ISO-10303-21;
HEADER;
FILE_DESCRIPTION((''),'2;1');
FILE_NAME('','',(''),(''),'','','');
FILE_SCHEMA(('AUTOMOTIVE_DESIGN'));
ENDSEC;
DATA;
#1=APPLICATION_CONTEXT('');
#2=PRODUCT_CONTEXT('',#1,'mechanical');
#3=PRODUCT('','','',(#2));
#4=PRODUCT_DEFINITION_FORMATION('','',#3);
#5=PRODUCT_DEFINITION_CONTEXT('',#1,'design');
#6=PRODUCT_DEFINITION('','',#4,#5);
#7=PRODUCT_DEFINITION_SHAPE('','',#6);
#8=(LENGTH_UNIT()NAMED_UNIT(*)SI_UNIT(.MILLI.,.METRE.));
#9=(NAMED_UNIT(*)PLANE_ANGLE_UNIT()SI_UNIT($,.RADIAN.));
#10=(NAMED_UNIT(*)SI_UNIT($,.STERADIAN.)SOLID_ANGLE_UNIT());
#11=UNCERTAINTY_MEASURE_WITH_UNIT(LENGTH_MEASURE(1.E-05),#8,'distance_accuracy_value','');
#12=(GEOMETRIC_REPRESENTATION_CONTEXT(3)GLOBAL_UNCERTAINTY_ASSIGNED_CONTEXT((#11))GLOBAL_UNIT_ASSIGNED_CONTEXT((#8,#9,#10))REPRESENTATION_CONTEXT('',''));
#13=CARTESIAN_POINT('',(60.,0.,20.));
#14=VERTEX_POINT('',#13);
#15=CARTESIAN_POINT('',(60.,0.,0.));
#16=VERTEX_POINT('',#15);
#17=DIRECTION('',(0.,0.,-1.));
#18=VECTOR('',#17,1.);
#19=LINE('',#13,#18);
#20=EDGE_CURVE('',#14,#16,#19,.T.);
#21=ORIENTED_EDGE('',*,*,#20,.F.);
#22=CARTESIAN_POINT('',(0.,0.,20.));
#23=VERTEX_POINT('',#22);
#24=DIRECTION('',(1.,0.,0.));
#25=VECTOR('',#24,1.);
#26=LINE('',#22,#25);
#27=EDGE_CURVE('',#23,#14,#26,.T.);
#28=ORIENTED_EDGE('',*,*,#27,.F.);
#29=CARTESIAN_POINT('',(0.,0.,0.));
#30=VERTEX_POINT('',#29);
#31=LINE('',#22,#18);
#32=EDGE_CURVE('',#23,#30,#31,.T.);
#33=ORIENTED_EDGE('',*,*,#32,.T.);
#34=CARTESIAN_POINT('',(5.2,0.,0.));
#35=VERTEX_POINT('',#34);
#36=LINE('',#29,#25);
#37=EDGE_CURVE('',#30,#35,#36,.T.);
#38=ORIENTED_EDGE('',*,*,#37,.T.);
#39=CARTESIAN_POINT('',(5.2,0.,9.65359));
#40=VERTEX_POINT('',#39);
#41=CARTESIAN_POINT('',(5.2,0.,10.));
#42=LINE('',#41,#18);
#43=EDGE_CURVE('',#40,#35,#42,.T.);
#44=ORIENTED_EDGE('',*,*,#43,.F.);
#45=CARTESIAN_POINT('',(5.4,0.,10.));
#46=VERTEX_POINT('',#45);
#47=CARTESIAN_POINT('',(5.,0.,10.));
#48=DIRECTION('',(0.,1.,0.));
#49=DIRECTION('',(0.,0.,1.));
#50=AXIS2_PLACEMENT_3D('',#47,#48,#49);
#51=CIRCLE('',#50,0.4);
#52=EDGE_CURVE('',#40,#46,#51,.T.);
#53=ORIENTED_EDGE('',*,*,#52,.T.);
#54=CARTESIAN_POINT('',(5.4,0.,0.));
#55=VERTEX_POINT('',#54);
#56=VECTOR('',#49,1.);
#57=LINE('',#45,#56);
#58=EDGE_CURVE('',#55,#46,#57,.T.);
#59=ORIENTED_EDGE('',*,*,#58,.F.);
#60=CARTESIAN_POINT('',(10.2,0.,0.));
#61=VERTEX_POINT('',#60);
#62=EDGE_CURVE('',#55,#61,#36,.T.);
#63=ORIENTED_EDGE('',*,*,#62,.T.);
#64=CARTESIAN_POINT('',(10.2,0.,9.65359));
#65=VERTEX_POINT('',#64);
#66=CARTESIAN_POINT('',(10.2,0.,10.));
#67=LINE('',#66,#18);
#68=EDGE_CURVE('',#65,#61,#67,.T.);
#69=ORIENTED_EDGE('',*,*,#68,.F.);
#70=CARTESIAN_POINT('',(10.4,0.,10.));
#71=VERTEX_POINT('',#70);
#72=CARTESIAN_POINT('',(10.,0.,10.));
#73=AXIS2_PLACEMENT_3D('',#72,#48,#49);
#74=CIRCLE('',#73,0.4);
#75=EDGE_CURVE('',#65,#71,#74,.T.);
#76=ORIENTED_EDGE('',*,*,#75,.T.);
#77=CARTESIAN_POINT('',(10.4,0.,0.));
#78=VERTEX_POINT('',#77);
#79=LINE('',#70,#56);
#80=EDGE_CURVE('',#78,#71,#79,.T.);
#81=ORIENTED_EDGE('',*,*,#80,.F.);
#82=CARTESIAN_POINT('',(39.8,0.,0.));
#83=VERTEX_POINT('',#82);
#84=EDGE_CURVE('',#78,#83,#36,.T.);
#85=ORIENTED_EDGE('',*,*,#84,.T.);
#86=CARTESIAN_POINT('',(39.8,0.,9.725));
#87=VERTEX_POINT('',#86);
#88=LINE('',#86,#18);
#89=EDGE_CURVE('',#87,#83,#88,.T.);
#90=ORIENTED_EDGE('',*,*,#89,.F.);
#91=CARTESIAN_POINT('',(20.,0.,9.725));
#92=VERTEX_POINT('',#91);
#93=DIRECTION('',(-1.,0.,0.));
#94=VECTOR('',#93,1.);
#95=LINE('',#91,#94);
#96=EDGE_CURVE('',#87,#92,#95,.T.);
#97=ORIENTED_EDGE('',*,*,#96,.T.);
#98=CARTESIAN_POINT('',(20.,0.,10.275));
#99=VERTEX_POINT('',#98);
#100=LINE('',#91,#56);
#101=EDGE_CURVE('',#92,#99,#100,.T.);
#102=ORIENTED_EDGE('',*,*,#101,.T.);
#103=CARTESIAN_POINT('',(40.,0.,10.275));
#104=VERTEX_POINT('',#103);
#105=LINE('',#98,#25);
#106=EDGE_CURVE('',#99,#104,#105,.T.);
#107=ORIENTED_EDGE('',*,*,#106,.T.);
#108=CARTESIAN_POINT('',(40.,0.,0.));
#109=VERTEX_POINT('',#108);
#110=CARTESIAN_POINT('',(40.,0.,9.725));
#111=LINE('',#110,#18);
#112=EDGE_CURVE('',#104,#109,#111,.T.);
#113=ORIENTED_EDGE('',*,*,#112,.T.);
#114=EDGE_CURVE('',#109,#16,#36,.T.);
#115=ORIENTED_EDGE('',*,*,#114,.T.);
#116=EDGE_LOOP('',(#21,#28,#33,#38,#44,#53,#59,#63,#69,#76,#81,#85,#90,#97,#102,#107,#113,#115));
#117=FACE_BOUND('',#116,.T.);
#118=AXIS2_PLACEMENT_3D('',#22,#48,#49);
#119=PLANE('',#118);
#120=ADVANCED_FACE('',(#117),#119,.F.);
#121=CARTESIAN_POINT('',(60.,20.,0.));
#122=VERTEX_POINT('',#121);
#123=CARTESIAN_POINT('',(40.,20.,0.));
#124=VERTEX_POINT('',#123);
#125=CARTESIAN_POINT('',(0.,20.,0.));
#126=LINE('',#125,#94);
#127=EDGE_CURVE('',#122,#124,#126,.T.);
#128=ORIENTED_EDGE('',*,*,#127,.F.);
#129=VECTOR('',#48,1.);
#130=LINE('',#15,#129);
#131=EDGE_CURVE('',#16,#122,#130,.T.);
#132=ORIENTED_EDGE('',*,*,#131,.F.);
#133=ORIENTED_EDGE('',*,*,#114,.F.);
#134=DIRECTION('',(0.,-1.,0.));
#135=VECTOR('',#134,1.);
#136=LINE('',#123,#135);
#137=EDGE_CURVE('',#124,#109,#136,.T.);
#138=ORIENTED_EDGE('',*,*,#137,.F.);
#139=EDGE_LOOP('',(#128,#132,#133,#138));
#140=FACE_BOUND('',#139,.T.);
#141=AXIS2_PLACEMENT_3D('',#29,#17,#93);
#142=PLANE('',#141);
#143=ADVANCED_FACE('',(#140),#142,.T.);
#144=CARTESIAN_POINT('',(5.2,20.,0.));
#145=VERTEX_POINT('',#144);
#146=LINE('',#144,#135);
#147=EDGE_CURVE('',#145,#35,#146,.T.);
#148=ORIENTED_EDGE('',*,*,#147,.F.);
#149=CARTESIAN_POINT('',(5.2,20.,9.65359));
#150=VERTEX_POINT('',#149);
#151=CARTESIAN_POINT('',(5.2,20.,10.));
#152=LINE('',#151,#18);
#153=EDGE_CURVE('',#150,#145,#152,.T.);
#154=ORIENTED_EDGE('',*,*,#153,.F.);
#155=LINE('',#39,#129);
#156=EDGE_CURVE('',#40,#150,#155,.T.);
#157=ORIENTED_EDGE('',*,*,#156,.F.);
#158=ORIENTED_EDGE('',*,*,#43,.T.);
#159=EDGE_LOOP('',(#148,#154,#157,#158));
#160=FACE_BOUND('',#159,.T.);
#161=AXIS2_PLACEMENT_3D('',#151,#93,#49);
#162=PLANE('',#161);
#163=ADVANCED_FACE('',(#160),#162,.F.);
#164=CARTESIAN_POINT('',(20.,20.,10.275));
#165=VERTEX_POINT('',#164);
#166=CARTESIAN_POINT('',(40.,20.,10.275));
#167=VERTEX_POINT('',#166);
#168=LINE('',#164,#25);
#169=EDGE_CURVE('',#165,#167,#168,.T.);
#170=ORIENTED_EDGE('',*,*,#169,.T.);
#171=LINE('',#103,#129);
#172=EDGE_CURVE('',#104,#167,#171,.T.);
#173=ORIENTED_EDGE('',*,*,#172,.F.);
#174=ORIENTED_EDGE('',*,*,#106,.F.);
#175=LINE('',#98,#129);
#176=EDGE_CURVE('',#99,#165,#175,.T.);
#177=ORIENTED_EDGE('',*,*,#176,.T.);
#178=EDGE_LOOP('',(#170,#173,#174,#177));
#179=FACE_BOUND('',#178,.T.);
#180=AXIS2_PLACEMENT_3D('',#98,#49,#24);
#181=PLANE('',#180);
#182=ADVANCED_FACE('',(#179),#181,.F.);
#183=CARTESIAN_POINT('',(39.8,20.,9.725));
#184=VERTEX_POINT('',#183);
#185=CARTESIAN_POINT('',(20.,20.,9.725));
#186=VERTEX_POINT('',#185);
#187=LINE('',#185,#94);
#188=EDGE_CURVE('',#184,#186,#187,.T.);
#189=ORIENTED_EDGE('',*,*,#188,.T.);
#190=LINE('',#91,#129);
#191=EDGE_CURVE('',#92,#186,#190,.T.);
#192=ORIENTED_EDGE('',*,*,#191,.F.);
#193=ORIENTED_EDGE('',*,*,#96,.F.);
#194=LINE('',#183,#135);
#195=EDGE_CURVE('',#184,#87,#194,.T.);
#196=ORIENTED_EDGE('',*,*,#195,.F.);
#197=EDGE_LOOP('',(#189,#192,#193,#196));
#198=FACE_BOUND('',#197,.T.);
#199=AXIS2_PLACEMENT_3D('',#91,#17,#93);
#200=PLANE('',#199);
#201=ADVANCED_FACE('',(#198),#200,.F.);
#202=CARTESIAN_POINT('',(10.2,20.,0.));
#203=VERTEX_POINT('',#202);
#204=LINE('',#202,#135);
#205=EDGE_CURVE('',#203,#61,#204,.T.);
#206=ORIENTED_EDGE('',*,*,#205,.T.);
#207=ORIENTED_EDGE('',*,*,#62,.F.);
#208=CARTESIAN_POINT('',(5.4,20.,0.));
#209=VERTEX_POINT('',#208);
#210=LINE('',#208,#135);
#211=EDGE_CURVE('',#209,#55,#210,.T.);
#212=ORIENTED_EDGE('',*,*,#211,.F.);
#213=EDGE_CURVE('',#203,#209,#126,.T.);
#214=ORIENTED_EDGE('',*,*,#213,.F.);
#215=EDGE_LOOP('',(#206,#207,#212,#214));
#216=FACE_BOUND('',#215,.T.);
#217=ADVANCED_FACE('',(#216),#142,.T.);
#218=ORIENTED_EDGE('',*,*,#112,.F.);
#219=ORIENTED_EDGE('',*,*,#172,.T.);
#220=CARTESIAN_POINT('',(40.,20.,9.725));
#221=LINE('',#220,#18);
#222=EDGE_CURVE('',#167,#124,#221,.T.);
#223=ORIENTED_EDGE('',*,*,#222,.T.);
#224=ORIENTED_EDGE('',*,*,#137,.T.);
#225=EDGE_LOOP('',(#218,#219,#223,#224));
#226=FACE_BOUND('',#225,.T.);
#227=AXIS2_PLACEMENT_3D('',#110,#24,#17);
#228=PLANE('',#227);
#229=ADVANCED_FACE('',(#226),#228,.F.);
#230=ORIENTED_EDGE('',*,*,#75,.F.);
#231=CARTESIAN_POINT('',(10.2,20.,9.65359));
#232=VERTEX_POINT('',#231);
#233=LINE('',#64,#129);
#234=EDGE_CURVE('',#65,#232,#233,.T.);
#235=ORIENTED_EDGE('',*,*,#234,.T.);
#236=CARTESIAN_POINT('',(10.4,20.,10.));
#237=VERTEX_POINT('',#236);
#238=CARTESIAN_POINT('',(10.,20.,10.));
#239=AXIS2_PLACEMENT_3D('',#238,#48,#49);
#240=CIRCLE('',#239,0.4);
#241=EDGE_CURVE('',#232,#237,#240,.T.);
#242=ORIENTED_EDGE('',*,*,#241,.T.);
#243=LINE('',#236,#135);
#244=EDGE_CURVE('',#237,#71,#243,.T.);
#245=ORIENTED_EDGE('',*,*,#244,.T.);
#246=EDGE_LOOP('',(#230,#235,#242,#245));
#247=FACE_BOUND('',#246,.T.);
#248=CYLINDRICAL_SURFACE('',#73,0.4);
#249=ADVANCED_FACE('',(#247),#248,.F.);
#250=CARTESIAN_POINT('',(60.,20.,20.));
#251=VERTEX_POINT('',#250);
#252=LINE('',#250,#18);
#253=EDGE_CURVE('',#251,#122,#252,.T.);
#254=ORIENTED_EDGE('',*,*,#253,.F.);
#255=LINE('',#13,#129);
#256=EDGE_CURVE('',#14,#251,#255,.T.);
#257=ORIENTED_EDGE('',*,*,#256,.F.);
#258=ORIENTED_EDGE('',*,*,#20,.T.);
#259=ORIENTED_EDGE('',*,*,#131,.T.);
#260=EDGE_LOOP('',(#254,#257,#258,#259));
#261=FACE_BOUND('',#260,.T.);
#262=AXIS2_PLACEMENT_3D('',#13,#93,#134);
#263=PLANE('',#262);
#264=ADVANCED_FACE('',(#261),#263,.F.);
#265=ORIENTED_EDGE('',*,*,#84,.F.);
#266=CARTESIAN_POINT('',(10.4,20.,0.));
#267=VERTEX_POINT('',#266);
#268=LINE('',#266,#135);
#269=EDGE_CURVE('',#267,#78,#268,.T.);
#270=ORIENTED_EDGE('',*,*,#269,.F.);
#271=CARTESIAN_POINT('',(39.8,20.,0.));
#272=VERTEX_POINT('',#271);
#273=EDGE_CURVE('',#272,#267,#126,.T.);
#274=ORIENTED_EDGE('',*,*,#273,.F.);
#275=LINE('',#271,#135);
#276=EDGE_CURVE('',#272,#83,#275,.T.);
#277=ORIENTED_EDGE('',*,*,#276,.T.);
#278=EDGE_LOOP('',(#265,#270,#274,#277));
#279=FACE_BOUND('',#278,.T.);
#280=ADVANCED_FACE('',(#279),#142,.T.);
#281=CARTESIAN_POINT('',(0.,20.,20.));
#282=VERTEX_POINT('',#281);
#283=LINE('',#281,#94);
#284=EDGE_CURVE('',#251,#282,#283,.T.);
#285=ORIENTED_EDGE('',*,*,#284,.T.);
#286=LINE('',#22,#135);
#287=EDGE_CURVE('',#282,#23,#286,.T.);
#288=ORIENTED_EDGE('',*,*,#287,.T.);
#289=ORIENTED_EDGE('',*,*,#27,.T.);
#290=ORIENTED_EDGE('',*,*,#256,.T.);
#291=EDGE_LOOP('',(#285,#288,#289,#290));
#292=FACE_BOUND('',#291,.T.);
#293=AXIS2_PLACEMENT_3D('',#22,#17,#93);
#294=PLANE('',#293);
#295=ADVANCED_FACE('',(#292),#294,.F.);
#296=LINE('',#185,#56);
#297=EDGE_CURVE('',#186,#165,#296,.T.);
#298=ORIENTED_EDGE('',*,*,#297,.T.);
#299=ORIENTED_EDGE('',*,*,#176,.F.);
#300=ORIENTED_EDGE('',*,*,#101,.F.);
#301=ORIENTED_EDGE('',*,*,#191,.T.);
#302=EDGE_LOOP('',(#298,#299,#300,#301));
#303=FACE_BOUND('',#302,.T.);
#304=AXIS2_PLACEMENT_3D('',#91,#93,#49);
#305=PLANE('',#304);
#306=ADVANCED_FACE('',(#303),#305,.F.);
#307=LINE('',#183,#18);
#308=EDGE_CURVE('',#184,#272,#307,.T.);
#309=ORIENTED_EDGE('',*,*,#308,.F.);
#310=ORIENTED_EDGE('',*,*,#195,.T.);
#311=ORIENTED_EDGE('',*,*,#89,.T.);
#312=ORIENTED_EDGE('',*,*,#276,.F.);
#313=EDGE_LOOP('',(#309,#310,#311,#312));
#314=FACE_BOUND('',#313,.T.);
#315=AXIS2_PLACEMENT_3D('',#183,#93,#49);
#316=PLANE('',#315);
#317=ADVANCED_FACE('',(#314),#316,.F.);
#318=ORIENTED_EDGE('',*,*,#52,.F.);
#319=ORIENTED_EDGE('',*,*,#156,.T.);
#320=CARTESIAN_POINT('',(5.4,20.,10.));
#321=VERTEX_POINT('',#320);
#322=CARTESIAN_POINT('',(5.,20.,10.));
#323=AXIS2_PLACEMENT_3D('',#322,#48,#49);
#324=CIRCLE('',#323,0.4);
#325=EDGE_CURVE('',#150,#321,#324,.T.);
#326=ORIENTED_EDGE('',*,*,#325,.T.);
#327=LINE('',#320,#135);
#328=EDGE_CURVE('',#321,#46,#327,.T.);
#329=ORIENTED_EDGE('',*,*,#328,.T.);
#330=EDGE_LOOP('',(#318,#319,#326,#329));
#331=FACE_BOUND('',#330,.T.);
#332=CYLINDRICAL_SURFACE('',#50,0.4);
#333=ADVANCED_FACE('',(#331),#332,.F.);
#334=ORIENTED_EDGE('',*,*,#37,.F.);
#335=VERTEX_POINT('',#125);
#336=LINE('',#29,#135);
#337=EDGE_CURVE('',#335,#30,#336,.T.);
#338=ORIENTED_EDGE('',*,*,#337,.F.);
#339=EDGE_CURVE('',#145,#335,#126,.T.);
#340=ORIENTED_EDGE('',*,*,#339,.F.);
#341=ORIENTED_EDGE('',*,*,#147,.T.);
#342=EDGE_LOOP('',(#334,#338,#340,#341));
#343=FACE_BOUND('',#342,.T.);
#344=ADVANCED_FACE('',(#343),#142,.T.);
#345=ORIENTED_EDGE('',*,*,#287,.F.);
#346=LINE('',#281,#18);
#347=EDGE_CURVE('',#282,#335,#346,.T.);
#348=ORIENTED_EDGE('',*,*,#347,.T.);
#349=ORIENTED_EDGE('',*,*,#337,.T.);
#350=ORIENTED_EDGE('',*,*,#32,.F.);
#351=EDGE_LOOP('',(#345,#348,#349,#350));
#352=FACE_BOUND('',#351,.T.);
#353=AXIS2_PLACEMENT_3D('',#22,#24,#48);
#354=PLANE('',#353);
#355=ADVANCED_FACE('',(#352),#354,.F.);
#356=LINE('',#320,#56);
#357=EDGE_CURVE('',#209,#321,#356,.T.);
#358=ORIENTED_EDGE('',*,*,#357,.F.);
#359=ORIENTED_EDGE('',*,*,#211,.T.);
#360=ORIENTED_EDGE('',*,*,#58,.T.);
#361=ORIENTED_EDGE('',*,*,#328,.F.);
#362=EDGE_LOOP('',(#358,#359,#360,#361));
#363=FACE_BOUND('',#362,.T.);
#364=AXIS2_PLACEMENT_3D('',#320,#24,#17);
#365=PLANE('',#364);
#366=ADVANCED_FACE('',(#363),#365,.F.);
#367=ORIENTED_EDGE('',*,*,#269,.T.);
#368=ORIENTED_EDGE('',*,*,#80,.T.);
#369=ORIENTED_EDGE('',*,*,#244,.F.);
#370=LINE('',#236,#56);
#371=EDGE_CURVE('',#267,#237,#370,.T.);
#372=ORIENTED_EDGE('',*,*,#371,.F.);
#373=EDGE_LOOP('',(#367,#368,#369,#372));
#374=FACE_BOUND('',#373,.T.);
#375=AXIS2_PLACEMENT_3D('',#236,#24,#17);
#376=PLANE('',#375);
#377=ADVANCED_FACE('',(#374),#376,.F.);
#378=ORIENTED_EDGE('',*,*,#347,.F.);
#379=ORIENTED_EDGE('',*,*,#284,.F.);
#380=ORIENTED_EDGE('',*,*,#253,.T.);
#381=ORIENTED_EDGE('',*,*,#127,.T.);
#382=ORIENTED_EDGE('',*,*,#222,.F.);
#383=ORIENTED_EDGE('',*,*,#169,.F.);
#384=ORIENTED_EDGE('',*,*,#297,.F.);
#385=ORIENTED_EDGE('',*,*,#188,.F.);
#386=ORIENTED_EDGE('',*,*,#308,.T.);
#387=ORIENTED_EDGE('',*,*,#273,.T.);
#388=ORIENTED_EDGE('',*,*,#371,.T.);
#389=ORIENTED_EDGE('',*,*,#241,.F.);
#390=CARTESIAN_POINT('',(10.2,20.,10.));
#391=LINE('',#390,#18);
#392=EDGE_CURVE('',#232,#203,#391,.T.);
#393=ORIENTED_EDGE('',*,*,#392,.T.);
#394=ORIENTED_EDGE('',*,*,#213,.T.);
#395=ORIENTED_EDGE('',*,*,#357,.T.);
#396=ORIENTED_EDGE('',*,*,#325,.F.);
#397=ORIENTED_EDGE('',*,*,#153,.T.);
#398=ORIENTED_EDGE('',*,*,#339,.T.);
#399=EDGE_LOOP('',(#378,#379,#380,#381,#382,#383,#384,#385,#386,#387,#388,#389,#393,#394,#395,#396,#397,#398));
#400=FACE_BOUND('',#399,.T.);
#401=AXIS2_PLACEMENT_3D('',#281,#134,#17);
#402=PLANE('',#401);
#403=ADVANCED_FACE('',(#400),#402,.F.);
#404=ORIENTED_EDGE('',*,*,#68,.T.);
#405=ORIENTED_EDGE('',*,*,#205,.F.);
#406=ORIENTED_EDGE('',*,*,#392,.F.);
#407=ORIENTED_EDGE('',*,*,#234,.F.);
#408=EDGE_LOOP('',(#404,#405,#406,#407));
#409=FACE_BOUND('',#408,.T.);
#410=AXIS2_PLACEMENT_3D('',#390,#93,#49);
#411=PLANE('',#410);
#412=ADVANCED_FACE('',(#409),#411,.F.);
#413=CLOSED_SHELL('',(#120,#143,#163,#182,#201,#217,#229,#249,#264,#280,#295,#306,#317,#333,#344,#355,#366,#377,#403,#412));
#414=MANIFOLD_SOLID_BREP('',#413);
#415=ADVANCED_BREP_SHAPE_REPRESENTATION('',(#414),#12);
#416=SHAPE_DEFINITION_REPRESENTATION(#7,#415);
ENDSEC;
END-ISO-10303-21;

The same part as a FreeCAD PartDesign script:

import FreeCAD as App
import Part
import Sketcher
Q = App.Units.Quantity


def add_polygon(sketch, points):
    """Adds a closed chain of lines whose ends are joined by coincident constraints."""
    first, n = sketch.GeometryCount, len(points)
    for a, b in zip(points, points[1:] + points[:1]):
        sketch.addGeometry(Part.LineSegment(App.Vector(*a, 0), App.Vector(*b, 0)), False)
    for i in range(n):
        sketch.addConstraint(Sketcher.Constraint("Coincident", first + i, 2, first + (i + 1) % n, 1))

doc = App.newDocument("Part")
body = doc.addObject("PartDesign::Body", "Body")

# Sketch on XY plane
sketch1 = body.newObject("Sketcher::SketchObject", "Sketch")
sketch1.AttachmentSupport = (doc.getObject("XY_Plane"), [""])
sketch1.MapMode = "FlatFace"
add_polygon(sketch1, [(0, 20), (0, 0), (60, 0), (60, 20)])  # lines 0-3
sketch1.addConstraint([
    Sketcher.Constraint("Vertical", 0),
    Sketcher.Constraint("Horizontal", 1),
    Sketcher.Constraint("Vertical", 2),
    Sketcher.Constraint("Horizontal", 3),
    Sketcher.Constraint("Coincident", 0, 2, -1, 1),
    Sketcher.Constraint("DistanceX", 1, 1, 1, 2, Q("60 mm")),
    Sketcher.Constraint("DistanceY", 0, 2, 0, 1, Q("20 mm")),
])
pad1 = body.newObject("PartDesign::Pad", "Pad")
pad1.Profile = sketch1
pad1.Length = 20

# Sketch on XZ plane
sketch2 = body.newObject("Sketcher::SketchObject", "Sketch001")
sketch2.AttachmentSupport = (doc.getObject("XZ_Plane"), [""])
sketch2.MapMode = "FlatFace"
sketch2.AttachmentOffset = App.Placement(App.Vector(0, 0, -20), App.Rotation())
add_polygon(sketch2, [(20, 9.7), (20, 10.3), (40, 10.3), (40, 9.7)])  # lines 0-3
sketch2.addConstraint([
    Sketcher.Constraint("Vertical", 0),
    Sketcher.Constraint("Horizontal", 1),
    Sketcher.Constraint("Vertical", 2),
    Sketcher.Constraint("Horizontal", 3),
    Sketcher.Constraint("DistanceX", 1, 1, 1, 2, Q("20 mm")),
    Sketcher.Constraint("DistanceX", -1, 1, 0, 2, Q("20 mm")),
    Sketcher.Constraint("DistanceY", 0, 1, 0, 2, Q("0.55 mm")),
    Sketcher.Constraint("DistanceY", -1, 1, 0, 2, Q("10.275 mm")),
])
pocket1 = body.newObject("PartDesign::Pocket", "Pocket")
pocket1.Profile = sketch2
pocket1.Type = "ThroughAll"
pocket1.Reversed = True

# Sketch on XZ plane
sketch3 = body.newObject("Sketcher::SketchObject", "Sketch002")
sketch3.AttachmentSupport = (doc.getObject("XZ_Plane"), [""])
sketch3.MapMode = "FlatFace"
sketch3.AttachmentOffset = App.Placement(App.Vector(0, 0, -20), App.Rotation())
sketch3.addGeometry([
    Part.Circle(App.Vector(5, 10, 0), App.Vector(0, 0, 1), 0.4),
    Part.Circle(App.Vector(10, 10, 0), App.Vector(0, 0, 1), 0.4),
], False)
sketch3.addConstraint([
    Sketcher.Constraint("Equal", 0, 1),
    Sketcher.Constraint("Horizontal", 0, 3, 1, 3),
    Sketcher.Constraint("Diameter", 0, Q("0.8 mm")),
    Sketcher.Constraint("DistanceX", -1, 1, 0, 3, Q("5 mm")),
    Sketcher.Constraint("DistanceY", -1, 1, 0, 3, Q("10 mm")),
    Sketcher.Constraint("DistanceX", -1, 1, 1, 3, Q("10 mm")),
])
pocket2 = body.newObject("PartDesign::Pocket", "Pocket001")
pocket2.Profile = sketch3
pocket2.Type = "ThroughAll"
pocket2.Reversed = True

# Sketch on XZ plane
sketch4 = body.newObject("Sketcher::SketchObject", "Sketch003")
sketch4.AttachmentSupport = (doc.getObject("XZ_Plane"), [""])
sketch4.MapMode = "FlatFace"
add_polygon(sketch4, [(5.2, 10), (5.2, 0), (5.4, 0), (5.4, 10)])  # lines 0-3
add_polygon(sketch4, [(10.2, 10), (10.2, 0), (10.4, 0), (10.4, 10)])  # lines 4-7
add_polygon(sketch4, [(39.8, 9.72), (39.8, 0), (40, 0), (40, 9.72)])  # lines 8-11
sketch4.addConstraint([
    Sketcher.Constraint("Vertical", 0),
    Sketcher.Constraint("Horizontal", 1),
    Sketcher.Constraint("Vertical", 2),
    Sketcher.Constraint("Horizontal", 3),
    Sketcher.Constraint("Vertical", 4),
    Sketcher.Constraint("Horizontal", 5),
    Sketcher.Constraint("Vertical", 6),
    Sketcher.Constraint("Horizontal", 7),
    Sketcher.Constraint("Vertical", 8),
    Sketcher.Constraint("Horizontal", 9),
    Sketcher.Constraint("Vertical", 10),
    Sketcher.Constraint("Horizontal", 11),
    Sketcher.Constraint("PointOnObject", 0, 2, -1),
    Sketcher.Constraint("PointOnObject", 4, 2, -1),
    Sketcher.Constraint("PointOnObject", 8, 2, -1),
    Sketcher.Constraint("Horizontal", 3, 2, 6, 2),
    Sketcher.Constraint("Equal", 3, 5),
    Sketcher.Constraint("Equal", 7, 9),
    Sketcher.Constraint("DistanceY", 0, 2, 0, 1, Q("10 mm")),
    Sketcher.Constraint("DistanceX", 1, 1, 1, 2, Q("0.2 mm")),
    Sketcher.Constraint("DistanceX", -1, 1, 9, 2, Q("40 mm")),
    Sketcher.Constraint("DistanceX", 0, 2, 4, 2, Q("5 mm")),
    Sketcher.Constraint("DistanceX", -1, 1, 0, 2, Q("5.2 mm")),
    Sketcher.Constraint("DistanceY", 8, 2, 8, 1, Q("9.725 mm")),
])
pocket3 = body.newObject("PartDesign::Pocket", "Pocket002")
pocket3.Profile = sketch4
pocket3.Type = "ThroughAll"

doc.recompute()
